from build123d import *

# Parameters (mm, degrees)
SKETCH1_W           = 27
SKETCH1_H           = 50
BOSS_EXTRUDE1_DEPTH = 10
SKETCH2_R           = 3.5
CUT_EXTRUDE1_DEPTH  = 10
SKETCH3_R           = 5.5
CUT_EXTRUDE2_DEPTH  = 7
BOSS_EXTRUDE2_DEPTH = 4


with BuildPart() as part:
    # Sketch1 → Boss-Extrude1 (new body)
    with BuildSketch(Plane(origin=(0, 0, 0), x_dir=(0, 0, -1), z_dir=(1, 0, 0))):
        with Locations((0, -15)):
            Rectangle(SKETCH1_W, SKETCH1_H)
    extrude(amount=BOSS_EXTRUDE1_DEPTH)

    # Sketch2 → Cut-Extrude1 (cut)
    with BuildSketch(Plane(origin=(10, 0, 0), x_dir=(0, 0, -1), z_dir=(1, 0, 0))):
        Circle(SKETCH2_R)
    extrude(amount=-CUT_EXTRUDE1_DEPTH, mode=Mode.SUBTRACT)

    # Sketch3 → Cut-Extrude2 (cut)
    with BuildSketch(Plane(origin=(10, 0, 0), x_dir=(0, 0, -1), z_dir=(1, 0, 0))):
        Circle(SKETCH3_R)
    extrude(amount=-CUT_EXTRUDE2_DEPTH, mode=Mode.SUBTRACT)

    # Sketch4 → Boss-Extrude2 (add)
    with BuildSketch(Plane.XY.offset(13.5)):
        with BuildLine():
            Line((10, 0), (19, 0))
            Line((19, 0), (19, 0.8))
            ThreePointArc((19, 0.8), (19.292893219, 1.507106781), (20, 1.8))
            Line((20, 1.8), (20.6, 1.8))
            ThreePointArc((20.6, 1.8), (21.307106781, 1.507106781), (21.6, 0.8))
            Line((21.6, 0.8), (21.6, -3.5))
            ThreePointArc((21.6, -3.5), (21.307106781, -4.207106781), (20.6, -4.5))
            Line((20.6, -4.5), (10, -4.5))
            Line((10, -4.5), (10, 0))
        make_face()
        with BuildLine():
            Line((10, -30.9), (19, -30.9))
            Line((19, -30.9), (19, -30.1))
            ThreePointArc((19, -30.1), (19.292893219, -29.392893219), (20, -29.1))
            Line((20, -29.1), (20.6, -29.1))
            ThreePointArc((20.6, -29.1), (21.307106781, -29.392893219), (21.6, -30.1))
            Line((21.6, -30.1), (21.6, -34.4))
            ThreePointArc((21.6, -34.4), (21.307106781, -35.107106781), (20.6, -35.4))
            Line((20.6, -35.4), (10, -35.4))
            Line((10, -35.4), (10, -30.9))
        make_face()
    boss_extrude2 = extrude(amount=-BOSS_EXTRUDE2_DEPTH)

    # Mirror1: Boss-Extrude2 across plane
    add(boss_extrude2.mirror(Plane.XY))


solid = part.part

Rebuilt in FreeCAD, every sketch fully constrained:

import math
import FreeCAD as App
import Part
import Sketcher
from FreeCAD import Vector
Q = App.Units.Quantity

doc = App.newDocument("Part")
params = doc.addObject("Spreadsheet::Sheet", "Params")
for row, (alias, value) in enumerate([
    ("sketch1_width", "50 mm"),
    ("sketch1_height", "27 mm"),
    ("pad1_length", "10 mm"),
    ("sketch2_diameter", "7 mm"),
    ("pocket1_length", "10 mm"),
    ("sketch3_diameter", "11 mm"),
    ("pocket2_length", "7 mm"),
    ("sketch4_radius", "1 mm"),
    ("sketch4_width", "9 mm"),
    ("sketch4_width2", "10.6 mm"),
    ("sketch4_height", "4.5 mm"),
    ("sketch4_height2", "4.3 mm"),
    ("pad2_length", "4 mm"),
], start=1):
    params.set(f"A{row}", alias)
    params.set(f"B{row}", "=" + value)
    params.setAlias(f"B{row}", alias)

body = doc.addObject("PartDesign::Body", "Body")

# Sketch on YZ plane
sketch1 = body.newObject("Sketcher::SketchObject", "Sketch")
sketch1.AttachmentSupport = (doc.getObject("YZ_Plane"), [""])
sketch1.MapMode = "FlatFace"
sketch1.addGeometry([
    Part.LineSegment(Vector(10, 14, 0), Vector(-40, 14, 0)),
    Part.LineSegment(Vector(-40, 14, 0), Vector(-40, -14, 0)),
    Part.LineSegment(Vector(-40, -14, 0), Vector(10, -14, 0)),
    Part.LineSegment(Vector(10, -14, 0), Vector(10, 14, 0)),
], False)
sketch1.addConstraint([
    Sketcher.Constraint("Coincident", 0, 2, 1, 1),
    Sketcher.Constraint("Coincident", 1, 2, 2, 1),
    Sketcher.Constraint("Coincident", 2, 2, 3, 1),
    Sketcher.Constraint("Coincident", 3, 2, 0, 1),
    Sketcher.Constraint("Horizontal", 0),
    Sketcher.Constraint("Vertical", 1),
    Sketcher.Constraint("Horizontal", 2),
    Sketcher.Constraint("Vertical", 3),
    Sketcher.Constraint("DistanceX", 0, 2, 0, 1, Q("50 mm")),
    Sketcher.Constraint("DistanceY", 1, 2, 1, 1, Q("27 mm")),
    Sketcher.Constraint("DistanceX", 0, 2, -1, 1, Q("40 mm")),
    Sketcher.Constraint("DistanceY", -1, 1, 0, 2, Q("13.5 mm")),
])
sketch1.setExpression("Constraints[8]", "Params.sketch1_width")
sketch1.setExpression("Constraints[9]", "Params.sketch1_height")
pad1 = body.newObject("PartDesign::Pad", "Pad")
pad1.Profile = sketch1
pad1.setExpression("Length", "Params.pad1_length")

# Sketch on YZ plane
sketch2 = body.newObject("Sketcher::SketchObject", "Sketch001")
sketch2.AttachmentSupport = (doc.getObject("YZ_Plane"), [""])
sketch2.MapMode = "FlatFace"
sketch2.AttachmentOffset = App.Placement(Vector(0, 0, 10), App.Rotation())
sketch2.addGeometry(Part.Circle(Vector(0, 0, 0), Vector(0, 0, 1), 3.5), False)
sketch2.addConstraint([
    Sketcher.Constraint("Coincident", 0, 3, -1, 1),
    Sketcher.Constraint("Diameter", 0, Q("7 mm")),
])
sketch2.setExpression("Constraints[1]", "Params.sketch2_diameter")
pocket1 = body.newObject("PartDesign::Pocket", "Pocket")
pocket1.Profile = sketch2
pocket1.setExpression("Length", "Params.pocket1_length")

# Sketch on YZ plane
sketch3 = body.newObject("Sketcher::SketchObject", "Sketch002")
sketch3.AttachmentSupport = (doc.getObject("YZ_Plane"), [""])
sketch3.MapMode = "FlatFace"
sketch3.AttachmentOffset = App.Placement(Vector(0, 0, 10), App.Rotation())
sketch3.addGeometry(Part.Circle(Vector(0, 0, 0), Vector(0, 0, 1), 6), False)
sketch3.addConstraint([
    Sketcher.Constraint("Coincident", 0, 3, -1, 1),
    Sketcher.Constraint("Diameter", 0, Q("11 mm")),
])
sketch3.setExpression("Constraints[1]", "Params.sketch3_diameter")
pocket2 = body.newObject("PartDesign::Pocket", "Pocket001")
pocket2.Profile = sketch3
pocket2.setExpression("Length", "Params.pocket2_length")

# Sketch on XY plane
sketch4 = body.newObject("Sketcher::SketchObject", "Sketch003")
sketch4.AttachmentSupport = (doc.getObject("XY_Plane"), [""])
sketch4.MapMode = "FlatFace"
sketch4.AttachmentOffset = App.Placement(Vector(0, 0, 13.5), App.Rotation())
sketch4.addGeometry([
    Part.LineSegment(Vector(19, 0, 0), Vector(10, 0, 0)),  # 0
    Part.LineSegment(Vector(10, 0, 0), Vector(10, -4.5, 0)),  # 1
    Part.LineSegment(Vector(10, -4.5, 0), Vector(20.6, -4.5, 0)),  # 2
    Part.ArcOfCircle(Part.Circle(Vector(20.6, -3.5, 0), Vector(0, 0, 1), 1), math.radians(-90), math.radians(0)),  # 3
    Part.LineSegment(Vector(21.6, -3.5, 0), Vector(21.6, 0.8, 0)),  # 4
    Part.ArcOfCircle(Part.Circle(Vector(20.6, 0.8, 0), Vector(0, 0, 1), 1), math.radians(0), math.radians(90)),  # 5
    Part.LineSegment(Vector(20.6, 1.8, 0), Vector(20, 1.8, 0)),  # 6
    Part.ArcOfCircle(Part.Circle(Vector(20, 0.8, 0), Vector(0, 0, 1), 1), math.radians(90), math.radians(180)),  # 7
    Part.LineSegment(Vector(19, 0.8, 0), Vector(19, 0, 0)),  # 8
    Part.LineSegment(Vector(19, -30.9, 0), Vector(10, -30.9, 0)),  # 9
    Part.LineSegment(Vector(10, -30.9, 0), Vector(10, -35.4, 0)),  # 10
    Part.LineSegment(Vector(10, -35.4, 0), Vector(20.6, -35.4, 0)),  # 11
    Part.ArcOfCircle(Part.Circle(Vector(20.6, -34.4, 0), Vector(0, 0, 1), 1), math.radians(-90), math.radians(0)),  # 12
    Part.LineSegment(Vector(21.6, -34.4, 0), Vector(21.6, -30.1, 0)),  # 13
    Part.ArcOfCircle(Part.Circle(Vector(20.6, -30.1, 0), Vector(0, 0, 1), 1), math.radians(0), math.radians(90)),  # 14
    Part.LineSegment(Vector(20.6, -29.1, 0), Vector(20, -29.1, 0)),  # 15
    Part.ArcOfCircle(Part.Circle(Vector(20, -30.1, 0), Vector(0, 0, 1), 1), math.radians(90), math.radians(180)),  # 16
    Part.LineSegment(Vector(19, -30.1, 0), Vector(19, -30.9, 0)),  # 17
], False)
sketch4.addConstraint([
    Sketcher.Constraint("Coincident", 0, 2, 1, 1),
    Sketcher.Constraint("Coincident", 1, 2, 2, 1),
    Sketcher.Constraint("Tangent", 2, 2, 3, 1),
    Sketcher.Constraint("Tangent", 3, 2, 4, 1),
    Sketcher.Constraint("Tangent", 4, 2, 5, 1),
    Sketcher.Constraint("Tangent", 5, 2, 6, 1),
    Sketcher.Constraint("Tangent", 6, 2, 7, 1),
    Sketcher.Constraint("Tangent", 7, 2, 8, 1),
    Sketcher.Constraint("Coincident", 8, 2, 0, 1),
    Sketcher.Constraint("Coincident", 9, 2, 10, 1),
    Sketcher.Constraint("Coincident", 10, 2, 11, 1),
    Sketcher.Constraint("Tangent", 11, 2, 12, 1),
    Sketcher.Constraint("Tangent", 12, 2, 13, 1),
    Sketcher.Constraint("Tangent", 13, 2, 14, 1),
    Sketcher.Constraint("Tangent", 14, 2, 15, 1),
    Sketcher.Constraint("Tangent", 15, 2, 16, 1),
    Sketcher.Constraint("Tangent", 16, 2, 17, 1),
    Sketcher.Constraint("Coincident", 17, 2, 9, 1),
    Sketcher.Constraint("Horizontal", 0),
    Sketcher.Constraint("Vertical", 1),
    Sketcher.Constraint("Horizontal", 2),
    Sketcher.Constraint("Vertical", 4),
    Sketcher.Constraint("Horizontal", 6),
    Sketcher.Constraint("Vertical", 8),
    Sketcher.Constraint("Horizontal", 9),
    Sketcher.Constraint("Vertical", 10),
    Sketcher.Constraint("Horizontal", 11),
    Sketcher.Constraint("Vertical", 13),
    Sketcher.Constraint("Horizontal", 15),
    Sketcher.Constraint("Vertical", 17),
    Sketcher.Constraint("Equal", 3, 5),
    Sketcher.Constraint("Equal", 5, 7),
    Sketcher.Constraint("Equal", 7, 12),
    Sketcher.Constraint("Equal", 12, 14),
    Sketcher.Constraint("Equal", 14, 16),
    Sketcher.Constraint("PointOnObject", 0, 2, -1),
    Sketcher.Constraint("Vertical", 5, 3, 12, 3),
    Sketcher.Constraint("Vertical", 7, 3, 16, 3),
    Sketcher.Constraint("Vertical", 1, 2, 9, 2),
    Sketcher.Constraint("Equal", 1, 10),
    Sketcher.Constraint("Equal", 4, 13),
    Sketcher.Constraint("Radius", 3, Q("1 mm")),
    Sketcher.Constraint("DistanceX", 0, 2, 0, 1, Q("9 mm")),
    Sketcher.Constraint("DistanceX", 2, 1, 2, 2, Q("10.6 mm")),
    Sketcher.Constraint("DistanceY", 1, 2, 1, 1, Q("4.5 mm")),
    Sketcher.Constraint("DistanceY", 4, 1, 4, 2, Q("4.3 mm")),
    Sketcher.Constraint("DistanceX", -1, 1, 7, 3, Q("20 mm")),
    Sketcher.Constraint("DistanceY", 12, 3, -1, 1, Q("34.4 mm")),
])
sketch4.setExpression("Constraints[41]", "Params.sketch4_radius")
sketch4.setExpression("Constraints[42]", "Params.sketch4_width")
sketch4.setExpression("Constraints[43]", "Params.sketch4_width2")
sketch4.setExpression("Constraints[44]", "Params.sketch4_height")
sketch4.setExpression("Constraints[45]", "Params.sketch4_height2")
pad2 = body.newObject("PartDesign::Pad", "Pad001")
pad2.Profile = sketch4
pad2.setExpression("Length", "Params.pad2_length")
pad2.Reversed = True
doc.recompute()

mirrored = body.newObject("PartDesign::Mirrored", "Mirrored")
mirrored.Originals = [pad2]
mirrored.MirrorPlane = (doc.getObject("XY_Plane"), [""])
body.Tip = mirrored

doc.recompute()
